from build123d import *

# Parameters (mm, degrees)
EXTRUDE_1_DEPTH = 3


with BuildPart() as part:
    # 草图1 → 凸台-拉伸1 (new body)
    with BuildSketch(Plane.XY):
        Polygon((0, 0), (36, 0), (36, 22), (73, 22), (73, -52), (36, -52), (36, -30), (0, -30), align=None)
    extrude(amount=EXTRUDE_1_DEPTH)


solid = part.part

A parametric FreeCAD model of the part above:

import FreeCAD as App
import Part
import Sketcher
from FreeCAD import Vector
Q = App.Units.Quantity


def add_polygon(sketch, points):
    """Adds a closed chain of lines whose ends are joined by coincident constraints."""
    first, n = sketch.GeometryCount, len(points)
    for a, b in zip(points, points[1:] + points[:1]):
        sketch.addGeometry(Part.LineSegment(App.Vector(*a, 0), App.Vector(*b, 0)), False)
    for i in range(n):
        sketch.addConstraint(Sketcher.Constraint("Coincident", first + i, 2, first + (i + 1) % n, 1))

doc = App.newDocument("Part")
body = doc.addObject("PartDesign::Body", "Body")

# Sketch on XY plane
sketch1 = doc.addObject("Sketcher::SketchObject", "Sketch")
body.addObject(sketch1)
sketch1.AttachmentSupport = (doc.XY_Plane, [""])
sketch1.MapMode = "FlatFace"
add_polygon(sketch1, [(36, 0), (0, 0), (0, -30), (36, -30), (36, -52), (73, -52), (73, 22), (36, 22)])  # lines 0-7
sketch1.addConstraint([
    Sketcher.Constraint("Horizontal", 0),
    Sketcher.Constraint("Vertical", 1),
    Sketcher.Constraint("Horizontal", 2),
    Sketcher.Constraint("Vertical", 3),
    Sketcher.Constraint("Horizontal", 4),
    Sketcher.Constraint("Vertical", 5),
    Sketcher.Constraint("Horizontal", 6),
    Sketcher.Constraint("Vertical", 7),
    Sketcher.Constraint("Coincident", 0, 2, -1, 1),
    Sketcher.Constraint("Vertical", 3, 2, 6, 2),
    Sketcher.Constraint("Equal", 3, 7),
    Sketcher.Constraint("DistanceX", 0, 2, 0, 1, Q("36 mm")),
    Sketcher.Constraint("DistanceX", 4, 1, 4, 2, Q("37 mm")),
    Sketcher.Constraint("DistanceY", 1, 2, 1, 1, Q("30 mm")),
    Sketcher.Constraint("DistanceY", 3, 2, 3, 1, Q("22 mm")),
])
pad1 = doc.addObject("PartDesign::Pad", "Pad")
body.addObject(pad1)
pad1.Profile = sketch1
pad1.Length = 3

doc.recompute()
